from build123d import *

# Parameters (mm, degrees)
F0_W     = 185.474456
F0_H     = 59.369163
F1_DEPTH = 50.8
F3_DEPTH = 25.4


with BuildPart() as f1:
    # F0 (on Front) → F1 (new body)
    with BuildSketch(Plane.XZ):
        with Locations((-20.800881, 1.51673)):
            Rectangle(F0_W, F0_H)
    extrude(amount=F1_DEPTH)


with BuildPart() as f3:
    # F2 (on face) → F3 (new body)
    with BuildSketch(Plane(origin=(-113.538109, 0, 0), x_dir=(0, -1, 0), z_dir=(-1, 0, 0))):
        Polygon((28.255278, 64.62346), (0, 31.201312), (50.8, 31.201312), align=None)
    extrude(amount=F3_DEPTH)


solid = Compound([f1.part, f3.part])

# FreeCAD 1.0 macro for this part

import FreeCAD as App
import Part
import Sketcher
from FreeCAD import Vector
Q = App.Units.Quantity


def add_polygon(sketch, points):
    """Adds a closed chain of lines whose ends are joined by coincident constraints."""
    first, n = sketch.GeometryCount, len(points)
    for a, b in zip(points, points[1:] + points[:1]):
        sketch.addGeometry(Part.LineSegment(App.Vector(*a, 0), App.Vector(*b, 0)), False)
    for i in range(n):
        sketch.addConstraint(Sketcher.Constraint("Coincident", first + i, 2, first + (i + 1) % n, 1))

doc = App.newDocument("Part")
body = doc.addObject("PartDesign::Body", "Body")

# Sketch on XZ plane
sketch1 = body.newObject("Sketcher::SketchObject", "Sketch")
sketch1.AttachmentSupport = (doc.getObject("XZ_Plane"), [""])
sketch1.MapMode = "FlatFace"
add_polygon(sketch1, [(-114, 31), (-114, -28), (72, -28), (72, 31)])  # lines 0-3
sketch1.addConstraint(Sketcher.Constraint("Vertical", 0))
sketch1.addConstraint(Sketcher.Constraint("Horizontal", 1))
sketch1.addConstraint(Sketcher.Constraint("Vertical", 2))
sketch1.addConstraint(Sketcher.Constraint("Horizontal", 3))
sketch1.addConstraint(Sketcher.Constraint("DistanceX", 1, 1, 1, 2, Q("185.474456 mm")))
sketch1.addConstraint(Sketcher.Constraint("DistanceY", 0, 2, 0, 1, Q("59.369163 mm")))
sketch1.addConstraint(Sketcher.Constraint("DistanceX", 0, 2, -1, 1, Q("113.538109 mm")))
sketch1.addConstraint(Sketcher.Constraint("DistanceY", 0, 2, -1, 1, Q("28.167852 mm")))
pad1 = body.newObject("PartDesign::Pad", "Pad")
pad1.Profile = sketch1
pad1.Length = Q("2 in")
body2 = doc.addObject("PartDesign::Body", "Body001")

# Sketch on YZ plane
sketch2 = body2.newObject("Sketcher::SketchObject", "Sketch001")
sketch2.AttachmentSupport = (doc.getObject("YZ_Plane001"), [""])
sketch2.MapMode = "FlatFace"
sketch2.AttachmentOffset = App.Placement(Vector(0, 0, -113.538109), App.Rotation())
add_polygon(sketch2, [(-28, 65), (0, 31), (-51, 31)])  # lines 0-2
sketch2.addConstraint(Sketcher.Constraint("Horizontal", 1))
sketch2.addConstraint(Sketcher.Constraint("PointOnObject", 0, 2, -2))
sketch2.addConstraint(Sketcher.Constraint("DistanceX", 1, 2, 1, 1, Q("2 in")))
sketch2.addConstraint(Sketcher.Constraint("Distance", 0, Q("43.765291 mm")))
sketch2.addConstraint(Sketcher.Constraint("DistanceX", 2, 2, -1, 1, Q("28.255278 mm")))
sketch2.addConstraint(Sketcher.Constraint("DistanceY", -1, 1, 2, 2, Q("64.62346 mm")))
pad2 = body2.newObject("PartDesign::Pad", "Pad001")
pad2.Profile = sketch2
pad2.Length = Q("1 in")
pad2.Reversed = True

doc.recompute()
